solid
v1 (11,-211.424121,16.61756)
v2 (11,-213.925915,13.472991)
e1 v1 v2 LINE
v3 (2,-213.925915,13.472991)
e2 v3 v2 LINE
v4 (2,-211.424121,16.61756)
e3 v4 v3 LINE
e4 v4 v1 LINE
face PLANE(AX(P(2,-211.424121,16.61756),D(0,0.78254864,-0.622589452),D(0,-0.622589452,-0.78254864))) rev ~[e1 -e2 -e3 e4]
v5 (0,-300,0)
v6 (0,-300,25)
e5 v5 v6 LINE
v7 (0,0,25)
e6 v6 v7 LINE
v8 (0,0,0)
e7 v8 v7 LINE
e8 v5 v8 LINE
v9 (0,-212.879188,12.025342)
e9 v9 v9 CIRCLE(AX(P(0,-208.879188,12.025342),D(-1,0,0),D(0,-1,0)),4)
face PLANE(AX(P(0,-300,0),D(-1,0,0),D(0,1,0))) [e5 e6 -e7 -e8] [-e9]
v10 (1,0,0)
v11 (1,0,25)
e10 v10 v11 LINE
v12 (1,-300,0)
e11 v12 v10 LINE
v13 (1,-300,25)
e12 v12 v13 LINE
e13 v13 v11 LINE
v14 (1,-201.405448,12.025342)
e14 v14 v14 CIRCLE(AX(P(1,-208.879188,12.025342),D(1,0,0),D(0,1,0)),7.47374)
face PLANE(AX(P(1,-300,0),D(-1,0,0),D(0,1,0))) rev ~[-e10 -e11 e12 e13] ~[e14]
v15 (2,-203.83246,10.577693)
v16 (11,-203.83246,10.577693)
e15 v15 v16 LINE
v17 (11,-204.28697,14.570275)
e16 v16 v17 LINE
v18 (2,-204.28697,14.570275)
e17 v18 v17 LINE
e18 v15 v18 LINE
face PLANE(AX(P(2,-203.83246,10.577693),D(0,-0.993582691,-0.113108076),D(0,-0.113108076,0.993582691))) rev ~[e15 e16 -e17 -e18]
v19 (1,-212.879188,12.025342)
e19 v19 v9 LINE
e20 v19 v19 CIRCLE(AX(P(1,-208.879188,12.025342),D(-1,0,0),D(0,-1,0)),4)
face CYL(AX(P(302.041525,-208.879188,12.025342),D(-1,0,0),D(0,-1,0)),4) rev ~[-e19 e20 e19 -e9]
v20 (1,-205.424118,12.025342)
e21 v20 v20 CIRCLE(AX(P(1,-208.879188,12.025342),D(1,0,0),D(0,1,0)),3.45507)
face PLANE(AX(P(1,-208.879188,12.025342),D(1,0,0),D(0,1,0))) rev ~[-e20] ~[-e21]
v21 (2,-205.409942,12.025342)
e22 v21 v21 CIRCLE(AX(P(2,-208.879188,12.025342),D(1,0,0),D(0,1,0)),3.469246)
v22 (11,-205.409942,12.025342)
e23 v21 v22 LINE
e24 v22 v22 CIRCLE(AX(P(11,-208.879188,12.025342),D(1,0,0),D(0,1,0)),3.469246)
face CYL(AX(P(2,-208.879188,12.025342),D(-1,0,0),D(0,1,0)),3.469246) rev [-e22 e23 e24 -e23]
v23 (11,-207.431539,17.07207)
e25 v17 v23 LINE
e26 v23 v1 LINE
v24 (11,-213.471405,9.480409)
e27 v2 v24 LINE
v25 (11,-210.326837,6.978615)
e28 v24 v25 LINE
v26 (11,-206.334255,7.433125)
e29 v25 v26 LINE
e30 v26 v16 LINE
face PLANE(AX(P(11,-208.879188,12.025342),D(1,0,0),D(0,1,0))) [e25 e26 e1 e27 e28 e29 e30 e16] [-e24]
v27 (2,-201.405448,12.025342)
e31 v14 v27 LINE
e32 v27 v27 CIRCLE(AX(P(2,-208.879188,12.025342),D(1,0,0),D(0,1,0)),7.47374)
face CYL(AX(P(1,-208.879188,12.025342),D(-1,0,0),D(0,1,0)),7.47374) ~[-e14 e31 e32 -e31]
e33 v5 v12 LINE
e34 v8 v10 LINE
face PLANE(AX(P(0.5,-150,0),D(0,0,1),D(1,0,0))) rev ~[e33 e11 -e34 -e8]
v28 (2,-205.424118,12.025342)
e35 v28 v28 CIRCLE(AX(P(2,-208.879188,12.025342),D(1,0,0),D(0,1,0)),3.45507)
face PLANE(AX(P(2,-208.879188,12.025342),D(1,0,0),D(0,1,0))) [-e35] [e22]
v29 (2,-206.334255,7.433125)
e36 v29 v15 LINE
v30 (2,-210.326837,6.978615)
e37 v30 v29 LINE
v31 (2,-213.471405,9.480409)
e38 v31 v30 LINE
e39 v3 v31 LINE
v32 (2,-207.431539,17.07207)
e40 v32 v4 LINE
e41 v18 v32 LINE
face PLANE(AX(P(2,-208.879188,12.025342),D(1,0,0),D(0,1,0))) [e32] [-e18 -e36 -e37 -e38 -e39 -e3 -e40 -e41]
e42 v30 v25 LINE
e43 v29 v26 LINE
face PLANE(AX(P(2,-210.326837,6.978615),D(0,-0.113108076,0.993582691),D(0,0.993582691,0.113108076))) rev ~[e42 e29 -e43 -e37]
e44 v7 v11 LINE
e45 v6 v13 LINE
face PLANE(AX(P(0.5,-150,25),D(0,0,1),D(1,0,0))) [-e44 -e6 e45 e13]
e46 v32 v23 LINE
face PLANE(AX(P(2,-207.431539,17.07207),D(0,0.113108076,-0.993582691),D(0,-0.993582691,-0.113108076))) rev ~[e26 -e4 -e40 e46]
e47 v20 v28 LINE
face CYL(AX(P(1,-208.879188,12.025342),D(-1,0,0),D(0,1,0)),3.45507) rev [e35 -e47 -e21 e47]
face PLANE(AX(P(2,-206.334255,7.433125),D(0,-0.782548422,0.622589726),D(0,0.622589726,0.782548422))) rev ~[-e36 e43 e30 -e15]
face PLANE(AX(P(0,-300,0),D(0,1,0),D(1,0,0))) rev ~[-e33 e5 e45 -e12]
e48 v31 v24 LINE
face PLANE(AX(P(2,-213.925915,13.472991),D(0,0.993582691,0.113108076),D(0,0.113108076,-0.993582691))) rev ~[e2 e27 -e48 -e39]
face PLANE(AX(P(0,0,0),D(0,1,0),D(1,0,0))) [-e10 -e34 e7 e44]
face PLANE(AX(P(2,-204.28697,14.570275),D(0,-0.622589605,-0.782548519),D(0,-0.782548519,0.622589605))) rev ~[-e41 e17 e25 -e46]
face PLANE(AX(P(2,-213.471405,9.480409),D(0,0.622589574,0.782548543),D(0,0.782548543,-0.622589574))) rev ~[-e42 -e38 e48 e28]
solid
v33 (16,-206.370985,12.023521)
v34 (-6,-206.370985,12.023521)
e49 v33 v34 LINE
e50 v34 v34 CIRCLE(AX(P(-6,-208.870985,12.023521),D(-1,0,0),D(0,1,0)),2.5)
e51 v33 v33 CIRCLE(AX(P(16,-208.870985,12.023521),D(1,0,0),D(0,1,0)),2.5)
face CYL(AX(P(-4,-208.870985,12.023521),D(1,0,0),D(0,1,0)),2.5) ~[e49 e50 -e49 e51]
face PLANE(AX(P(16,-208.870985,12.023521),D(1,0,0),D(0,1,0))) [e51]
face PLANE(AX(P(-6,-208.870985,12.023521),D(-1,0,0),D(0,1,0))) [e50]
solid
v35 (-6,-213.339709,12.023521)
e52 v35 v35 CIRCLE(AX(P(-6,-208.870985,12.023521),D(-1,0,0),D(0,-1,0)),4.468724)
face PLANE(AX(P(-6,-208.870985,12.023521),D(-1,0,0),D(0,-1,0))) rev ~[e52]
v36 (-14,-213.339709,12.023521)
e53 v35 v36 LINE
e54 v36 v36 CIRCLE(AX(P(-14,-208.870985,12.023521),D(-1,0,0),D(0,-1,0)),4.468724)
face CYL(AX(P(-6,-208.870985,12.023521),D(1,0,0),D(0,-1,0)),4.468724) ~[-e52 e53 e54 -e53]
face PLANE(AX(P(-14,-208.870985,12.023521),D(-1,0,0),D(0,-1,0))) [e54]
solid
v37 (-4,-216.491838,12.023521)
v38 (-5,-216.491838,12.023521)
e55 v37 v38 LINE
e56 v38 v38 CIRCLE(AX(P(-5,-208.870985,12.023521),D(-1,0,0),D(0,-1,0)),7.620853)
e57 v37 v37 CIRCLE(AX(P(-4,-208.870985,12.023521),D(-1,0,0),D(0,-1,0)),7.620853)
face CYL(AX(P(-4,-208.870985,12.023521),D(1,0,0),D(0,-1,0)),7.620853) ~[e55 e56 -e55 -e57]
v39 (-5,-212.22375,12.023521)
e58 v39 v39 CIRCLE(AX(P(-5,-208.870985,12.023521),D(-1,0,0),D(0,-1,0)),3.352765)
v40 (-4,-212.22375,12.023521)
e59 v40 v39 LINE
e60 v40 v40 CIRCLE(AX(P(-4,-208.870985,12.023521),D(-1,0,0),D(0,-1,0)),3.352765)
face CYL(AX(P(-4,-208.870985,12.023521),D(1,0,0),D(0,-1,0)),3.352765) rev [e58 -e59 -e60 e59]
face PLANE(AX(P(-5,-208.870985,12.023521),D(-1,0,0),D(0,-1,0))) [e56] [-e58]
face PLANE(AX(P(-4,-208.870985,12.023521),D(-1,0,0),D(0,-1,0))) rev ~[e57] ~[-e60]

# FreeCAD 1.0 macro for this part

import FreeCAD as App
import Part
import Sketcher
Q = App.Units.Quantity

doc = App.newDocument("Part")
body = doc.addObject("PartDesign::Body", "Body")

# Sketch on XY plane
sketch1 = body.newObject("Sketcher::SketchObject", "Sketch")
sketch1.AttachmentSupport = (doc.getObject("XY_Plane"), [""])
sketch1.MapMode = "FlatFace"
sketch1.addGeometry(Part.LineSegment(App.Vector(0, 0, 0), App.Vector(0, -300, 0)), False)
sketch1.addGeometry(Part.LineSegment(App.Vector(0, -300, 0), App.Vector(1, -300, 0)), False)
sketch1.addGeometry(Part.LineSegment(App.Vector(1, -300, 0), App.Vector(1, 0, 0)), False)
sketch1.addGeometry(Part.LineSegment(App.Vector(1, 0, 0), App.Vector(0, 0, 0)), False)
sketch1.addConstraint(Sketcher.Constraint("Coincident", 0, 2, 1, 1))
sketch1.addConstraint(Sketcher.Constraint("Coincident", 1, 2, 2, 1))
sketch1.addConstraint(Sketcher.Constraint("Coincident", 2, 2, 3, 1))
sketch1.addConstraint(Sketcher.Constraint("Coincident", 3, 2, 0, 1))
sketch1.addConstraint(Sketcher.Constraint("Vertical", 0))
sketch1.addConstraint(Sketcher.Constraint("Horizontal", 1))
sketch1.addConstraint(Sketcher.Constraint("Vertical", 2))
sketch1.addConstraint(Sketcher.Constraint("Horizontal", 3))
sketch1.addConstraint(Sketcher.Constraint("Coincident", 3, 2, -1, 1))
sketch1.addConstraint(Sketcher.Constraint("DistanceX", 1, 1, 1, 2, Q("1 mm")))
sketch1.addConstraint(Sketcher.Constraint("DistanceY", 0, 2, 0, 1, Q("300 mm")))
pad1 = body.newObject("PartDesign::Pad", "Pad")
pad1.Profile = sketch1
pad1.Length = 25

# Sketch on YZ plane
sketch2 = body.newObject("Sketcher::SketchObject", "Sketch001")
sketch2.AttachmentSupport = (doc.getObject("YZ_Plane"), [""])
sketch2.MapMode = "FlatFace"
sketch2.AttachmentOffset = App.Placement(App.Vector(0, 0, 1), App.Rotation())
sketch2.addGeometry(Part.Circle(App.Vector(-208.879188, 12.025342, 0), App.Vector(0, 0, 1), 4), False)
sketch2.addConstraint(Sketcher.Constraint("Diameter", 0, Q("8 mm")))
sketch2.addConstraint(Sketcher.Constraint("DistanceX", 0, 3, -1, 1, Q("208.879188 mm")))
sketch2.addConstraint(Sketcher.Constraint("DistanceY", -1, 1, 0, 3, Q("12.025342 mm")))
doc.recompute()
hole = body.newObject("PartDesign::Hole", "Hole")
hole.Profile = sketch2
hole.ThreadType = "None"
hole.Diameter = 8
hole.DepthType = "ThroughAll"

# Sketch on YZ plane
sketch3 = body.newObject("Sketcher::SketchObject", "Sketch002")
sketch3.AttachmentSupport = (doc.getObject("YZ_Plane"), [""])
sketch3.MapMode = "FlatFace"
sketch3.AttachmentOffset = App.Placement(App.Vector(0, 0, 1), App.Rotation())
sketch3.addGeometry(Part.Circle(App.Vector(-208.879188, 12.025342, 0), App.Vector(0, 0, 1), 7.47374), False)
sketch3.addGeometry(Part.Circle(App.Vector(-208.879188, 12.025342, 0), App.Vector(0, 0, 1), 3.45507), False)
sketch3.addConstraint(Sketcher.Constraint("Coincident", 1, 3, 0, 3))
sketch3.addConstraint(Sketcher.Constraint("Diameter", 0, Q("14.94748 mm")))
sketch3.addConstraint(Sketcher.Constraint("Diameter", 1, Q("6.91014 mm")))
sketch3.addConstraint(Sketcher.Constraint("DistanceX", 0, 3, -1, 1, Q("208.879188 mm")))
sketch3.addConstraint(Sketcher.Constraint("DistanceY", -1, 1, 0, 3, Q("12.025342 mm")))
pad2 = body.newObject("PartDesign::Pad", "Pad001")
pad2.Profile = sketch3
pad2.Length = 1

# Sketch on YZ plane
sketch4 = body.newObject("Sketcher::SketchObject", "Sketch003")
sketch4.AttachmentSupport = (doc.getObject("YZ_Plane"), [""])
sketch4.MapMode = "FlatFace"
sketch4.AttachmentOffset = App.Placement(App.Vector(0, 0, 2), App.Rotation())
sketch4.addGeometry(Part.LineSegment(App.Vector(-204.28697, 14.570275, 0), App.Vector(-207.431539, 17.07207, 0)), False)
sketch4.addGeometry(Part.LineSegment(App.Vector(-207.431539, 17.07207, 0), App.Vector(-211.424121, 16.61756, 0)), False)
sketch4.addGeometry(Part.LineSegment(App.Vector(-211.424121, 16.61756, 0), App.Vector(-213.925915, 13.472991, 0)), False)
sketch4.addGeometry(Part.LineSegment(App.Vector(-213.925915, 13.472991, 0), App.Vector(-213.471405, 9.480409, 0)), False)
sketch4.addGeometry(Part.LineSegment(App.Vector(-213.471405, 9.480409, 0), App.Vector(-210.326837, 6.978615, 0)), False)
sketch4.addGeometry(Part.LineSegment(App.Vector(-210.326837, 6.978615, 0), App.Vector(-206.334255, 7.433125, 0)), False)
sketch4.addGeometry(Part.LineSegment(App.Vector(-206.334255, 7.433125, 0), App.Vector(-203.83246, 10.577693, 0)), False)
sketch4.addGeometry(Part.LineSegment(App.Vector(-203.83246, 10.577693, 0), App.Vector(-204.28697, 14.570275, 0)), False)
sketch4.addGeometry(Part.Circle(App.Vector(-208.879188, 12.025342, 0), App.Vector(0, 0, 1), 3.469246), False)
sketch4.addConstraint(Sketcher.Constraint("Coincident", 0, 2, 1, 1))
sketch4.addConstraint(Sketcher.Constraint("Coincident", 1, 2, 2, 1))
sketch4.addConstraint(Sketcher.Constraint("Coincident", 2, 2, 3, 1))
sketch4.addConstraint(Sketcher.Constraint("Coincident", 3, 2, 4, 1))
sketch4.addConstraint(Sketcher.Constraint("Coincident", 4, 2, 5, 1))
sketch4.addConstraint(Sketcher.Constraint("Coincident", 5, 2, 6, 1))
sketch4.addConstraint(Sketcher.Constraint("Coincident", 6, 2, 7, 1))
sketch4.addConstraint(Sketcher.Constraint("Coincident", 7, 2, 0, 1))
sketch4.addConstraint(Sketcher.Constraint("Perpendicular", 0, 2))
sketch4.addConstraint(Sketcher.Constraint("Perpendicular", 1, 3))
sketch4.addConstraint(Sketcher.Constraint("Perpendicular", 2, 4))
sketch4.addConstraint(Sketcher.Constraint("Perpendicular", 3, 5))
sketch4.addConstraint(Sketcher.Constraint("Perpendicular", 4, 6))
sketch4.addConstraint(Sketcher.Constraint("Perpendicular", 5, 7))
sketch4.addConstraint(Sketcher.Constraint("Equal", 0, 1))
sketch4.addConstraint(Sketcher.Constraint("Equal", 1, 2))
sketch4.addConstraint(Sketcher.Constraint("Equal", 2, 3))
sketch4.addConstraint(Sketcher.Constraint("Equal", 3, 4))
sketch4.addConstraint(Sketcher.Constraint("Equal", 4, 5))
sketch4.addConstraint(Sketcher.Constraint("Diameter", 8, Q("6.938492 mm")))
sketch4.addConstraint(Sketcher.Constraint("DistanceX", 4, 2, 0, 2, Q("2.895298 mm")))
sketch4.addConstraint(Sketcher.Constraint("Distance", 0, Q("4.018369 mm")))
sketch4.addConstraint(Sketcher.Constraint("DistanceX", 8, 3, -1, 1, Q("208.879188 mm")))
sketch4.addConstraint(Sketcher.Constraint("DistanceX", 0, 2, -1, 1, Q("207.431539 mm")))
sketch4.addConstraint(Sketcher.Constraint("DistanceY", -1, 1, 0, 2, Q("17.07207 mm")))
sketch4.addConstraint(Sketcher.Constraint("DistanceX", 1, 2, -1, 1, Q("211.424121 mm")))
sketch4.addConstraint(Sketcher.Constraint("DistanceY", 8, 3, 1, 2, Q("4.592218 mm")))
pad3 = body.newObject("PartDesign::Pad", "Pad002")
pad3.Profile = sketch4
pad3.Length = 9
body2 = doc.addObject("PartDesign::Body", "Body001")

# Sketch on YZ plane
sketch5 = body2.newObject("Sketcher::SketchObject", "Sketch004")
sketch5.AttachmentSupport = (doc.getObject("YZ_Plane001"), [""])
sketch5.MapMode = "FlatFace"
sketch5.AttachmentOffset = App.Placement(App.Vector(0, 0, 1), App.Rotation())
sketch5.addGeometry(Part.Circle(App.Vector(-208.870985, 12.023521, 0), App.Vector(0, 0, 1), 2.5), False)
sketch5.addConstraint(Sketcher.Constraint("Diameter", 0, Q("5 mm")))
sketch5.addConstraint(Sketcher.Constraint("DistanceY", -1, 1, 0, 3, Q("12.023521 mm")))
sketch5.addConstraint(Sketcher.Constraint("DistanceX", 0, 3, -1, 1, Q("208.870985 mm")))
pad4 = body2.newObject("PartDesign::Pad", "Pad003")
pad4.Profile = sketch5
pad4.Length = 15

# Sketch on YZ plane
sketch6 = body2.newObject("Sketcher::SketchObject", "Sketch005")
sketch6.AttachmentSupport = (doc.getObject("YZ_Plane001"), [""])
sketch6.MapMode = "FlatFace"
sketch6.AttachmentOffset = App.Placement(App.Vector(0, 0, 1), App.Rotation())
sketch6.addGeometry(Part.Circle(App.Vector(-208.870985, 12.023521, 0), App.Vector(0, 0, 1), 2.5), False)
sketch6.addConstraint(Sketcher.Constraint("Diameter", 0, Q("5 mm")))
sketch6.addConstraint(Sketcher.Constraint("DistanceY", -1, 1, 0, 3, Q("12.023521 mm")))
sketch6.addConstraint(Sketcher.Constraint("DistanceX", 0, 3, -1, 1, Q("208.870985 mm")))
pad5 = body2.newObject("PartDesign::Pad", "Pad004")
pad5.Profile = sketch6
pad5.Length = 5
pad5.Reversed = True

# Sketch on YZ plane
sketch7 = body2.newObject("Sketcher::SketchObject", "Sketch006")
sketch7.AttachmentSupport = (doc.getObject("YZ_Plane001"), [""])
sketch7.MapMode = "FlatFace"
sketch7.AttachmentOffset = App.Placement(App.Vector(0, 0, -4), App.Rotation())
sketch7.addGeometry(Part.Circle(App.Vector(-208.870985, 12.023521, 0), App.Vector(0, 0, 1), 2.5), False)
sketch7.addConstraint(Sketcher.Constraint("Diameter", 0, Q("5 mm")))
sketch7.addConstraint(Sketcher.Constraint("DistanceY", -1, 1, 0, 3, Q("12.023521 mm")))
sketch7.addConstraint(Sketcher.Constraint("DistanceX", 0, 3, -1, 1, Q("208.870985 mm")))
pad6 = body2.newObject("PartDesign::Pad", "Pad005")
pad6.Profile = sketch7
pad6.Length = 2
pad6.Reversed = True
body3 = doc.addObject("PartDesign::Body", "Body002")

# Sketch on YZ plane
sketch8 = body3.newObject("Sketcher::SketchObject", "Sketch007")
sketch8.AttachmentSupport = (doc.getObject("YZ_Plane002"), [""])
sketch8.MapMode = "FlatFace"
sketch8.AttachmentOffset = App.Placement(App.Vector(0, 0, -4), App.Rotation())
sketch8.addGeometry(Part.Circle(App.Vector(-208.870985, 12.023521, 0), App.Vector(0, 0, 1), 7.620853), False)
sketch8.addGeometry(Part.Circle(App.Vector(-208.870985, 12.023521, 0), App.Vector(0, 0, 1), 3.352765), False)
sketch8.addConstraint(Sketcher.Constraint("Coincident", 1, 3, 0, 3))
sketch8.addConstraint(Sketcher.Constraint("Diameter", 1, Q("6.70553 mm")))
sketch8.addConstraint(Sketcher.Constraint("Diameter", 0, Q("15.241706 mm")))
sketch8.addConstraint(Sketcher.Constraint("DistanceY", -1, 1, 0, 3, Q("12.023521 mm")))
sketch8.addConstraint(Sketcher.Constraint("DistanceX", 0, 3, -1, 1, Q("208.870985 mm")))
pad7 = body3.newObject("PartDesign::Pad", "Pad006")
pad7.Profile = sketch8
pad7.Length = 1
pad7.Reversed = True
body4 = doc.addObject("PartDesign::Body", "Body003")

# Sketch on YZ plane
sketch9 = body4.newObject("Sketcher::SketchObject", "Sketch008")
sketch9.AttachmentSupport = (doc.getObject("YZ_Plane003"), [""])
sketch9.MapMode = "FlatFace"
sketch9.AttachmentOffset = App.Placement(App.Vector(0, 0, -6), App.Rotation())
sketch9.addGeometry(Part.Circle(App.Vector(-208.870985, 12.023521, 0), App.Vector(0, 0, 1), 4.468724), False)
sketch9.addConstraint(Sketcher.Constraint("Diameter", 0, Q("8.937448 mm")))
sketch9.addConstraint(Sketcher.Constraint("DistanceY", -1, 1, 0, 3, Q("12.023521 mm")))
sketch9.addConstraint(Sketcher.Constraint("DistanceX", 0, 3, -1, 1, Q("208.870985 mm")))
pad8 = body4.newObject("PartDesign::Pad", "Pad007")
pad8.Profile = sketch9
pad8.Length = 8
pad8.Reversed = True

doc.recompute()
